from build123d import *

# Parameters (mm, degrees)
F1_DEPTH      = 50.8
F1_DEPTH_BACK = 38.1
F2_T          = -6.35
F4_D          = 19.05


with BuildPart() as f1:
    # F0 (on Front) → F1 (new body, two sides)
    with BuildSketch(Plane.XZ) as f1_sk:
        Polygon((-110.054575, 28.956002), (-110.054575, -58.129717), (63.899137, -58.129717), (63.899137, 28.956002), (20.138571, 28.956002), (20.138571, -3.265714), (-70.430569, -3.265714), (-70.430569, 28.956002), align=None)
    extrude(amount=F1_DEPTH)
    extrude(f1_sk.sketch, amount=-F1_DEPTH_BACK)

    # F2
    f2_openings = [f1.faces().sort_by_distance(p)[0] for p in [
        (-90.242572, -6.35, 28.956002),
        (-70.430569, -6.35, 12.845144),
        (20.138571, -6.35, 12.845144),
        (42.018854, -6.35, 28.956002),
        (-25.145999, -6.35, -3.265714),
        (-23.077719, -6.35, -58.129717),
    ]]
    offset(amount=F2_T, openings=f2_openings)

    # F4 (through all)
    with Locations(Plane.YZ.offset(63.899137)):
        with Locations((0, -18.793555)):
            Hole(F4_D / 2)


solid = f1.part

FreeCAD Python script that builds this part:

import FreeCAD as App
import Part
import Sketcher
Q = App.Units.Quantity


def faces_at(feature, points):
    """Names of the faces that lie closest to the given points."""
    faces = feature.Shape.Faces
    near = lambda p: min(range(len(faces)), key=lambda i: faces[i].distToShape(Part.Vertex(*p))[0])
    return sorted({f"Face{near(p) + 1}" for p in points})

doc = App.newDocument("Part")
params = doc.addObject("Spreadsheet::Sheet", "Params")
for row, (alias, value) in enumerate([
    ("pad1_length", "2 in"),
    ("pad1_length2", "1.5 in"),
    ("thickness_wall", "0.25 in"),
    ("sketch2_diameter", "0.75 in"),
    ("hole_diameter", "0.75 in"),
], start=1):
    params.set(f"A{row}", alias)
    params.set(f"B{row}", "=" + value)
    params.setAlias(f"B{row}", alias)

body = doc.addObject("PartDesign::Body", "Body")

sketch1 = body.newObject("Sketcher::SketchObject", "Sketch")
sketch1.AttachmentSupport = (doc.getObject("XZ_Plane"), [""])
sketch1.MapMode = "FlatFace"
sketch1.addGeometry(Part.LineSegment(App.Vector(-110, 29, 0), App.Vector(-110, -58, 0)), False)
sketch1.addGeometry(Part.LineSegment(App.Vector(-110, -58, 0), App.Vector(64, -58, 0)), False)
sketch1.addGeometry(Part.LineSegment(App.Vector(64, -58, 0), App.Vector(64, 29, 0)), False)
sketch1.addGeometry(Part.LineSegment(App.Vector(64, 29, 0), App.Vector(20, 29, 0)), False)
sketch1.addGeometry(Part.LineSegment(App.Vector(20, 29, 0), App.Vector(20, -3, 0)), False)
sketch1.addGeometry(Part.LineSegment(App.Vector(20, -3, 0), App.Vector(-70, -3, 0)), False)
sketch1.addGeometry(Part.LineSegment(App.Vector(-70, -3, 0), App.Vector(-70, 29, 0)), False)
sketch1.addGeometry(Part.LineSegment(App.Vector(-70, 29, 0), App.Vector(-110, 29, 0)), False)
sketch1.addConstraint(Sketcher.Constraint("Coincident", 0, 2, 1, 1))
sketch1.addConstraint(Sketcher.Constraint("Coincident", 1, 2, 2, 1))
sketch1.addConstraint(Sketcher.Constraint("Coincident", 2, 2, 3, 1))
sketch1.addConstraint(Sketcher.Constraint("Coincident", 3, 2, 4, 1))
sketch1.addConstraint(Sketcher.Constraint("Coincident", 4, 2, 5, 1))
sketch1.addConstraint(Sketcher.Constraint("Coincident", 5, 2, 6, 1))
sketch1.addConstraint(Sketcher.Constraint("Coincident", 6, 2, 7, 1))
sketch1.addConstraint(Sketcher.Constraint("Coincident", 7, 2, 0, 1))
sketch1.addConstraint(Sketcher.Constraint("Vertical", 0))
sketch1.addConstraint(Sketcher.Constraint("Horizontal", 1))
sketch1.addConstraint(Sketcher.Constraint("Vertical", 2))
sketch1.addConstraint(Sketcher.Constraint("Horizontal", 3))
sketch1.addConstraint(Sketcher.Constraint("Vertical", 4))
sketch1.addConstraint(Sketcher.Constraint("Horizontal", 5))
sketch1.addConstraint(Sketcher.Constraint("Vertical", 6))
sketch1.addConstraint(Sketcher.Constraint("Horizontal", 7))
sketch1.addConstraint(Sketcher.Constraint("Horizontal", 3, 2, 6, 2))
sketch1.addConstraint(Sketcher.Constraint("DistanceY", -1, 1, 2, 2, Q("1.1400001 in")))
sketch1.addConstraint(Sketcher.Constraint("DistanceY", 1, 2, 4, 2, Q("2.1600001 in")))
sketch1.addConstraint(Sketcher.Constraint("DistanceX", 1, 1, 1, 2, 173.953712))
sketch1.addConstraint(Sketcher.Constraint("DistanceX", 5, 2, 5, 1, 90.56914))
sketch1.addConstraint(Sketcher.Constraint("DistanceY", 0, 2, 0, 1, 87.085719))
sketch1.addConstraint(Sketcher.Constraint("DistanceX", 3, 2, 3, 1, 43.760566))
sketch1.addConstraint(Sketcher.Constraint("DistanceX", -1, 1, 3, 2, 20.138571))
pad1 = body.newObject("PartDesign::Pad", "Pad")
pad1.Profile = sketch1
pad1.Type = "TwoLengths"
pad1.setExpression("Length", "Params.pad1_length")
pad1.setExpression("Length2", "Params.pad1_length2")
doc.recompute()

thickness = body.newObject("PartDesign::Thickness", "Thickness")
thickness.Base = (pad1, faces_at(pad1, [
    (-90.243, -6.35, 28.956),
    (-70.431, -6.35, 12.845),
    (20.139, -6.35, 12.845),
    (42.019, -6.35, 28.956),
    (-25.146, -6.35, -3.266),
    (-23.078, -6.35, -58.13),
]))
thickness.setExpression("Value", "Params.thickness_wall")
thickness.Reversed = True
thickness.Join = "Arc"

sketch2 = body.newObject("Sketcher::SketchObject", "Sketch001")
sketch2.AttachmentSupport = (doc.getObject("YZ_Plane"), [""])
sketch2.MapMode = "FlatFace"
sketch2.AttachmentOffset = App.Placement(App.Vector(0, 0, 63.899137), App.Rotation())
sketch2.addGeometry(Part.Circle(App.Vector(0, -19, 0), App.Vector(0, 0, 1), 10), False)
sketch2.addConstraint(Sketcher.Constraint("PointOnObject", 0, 3, -2))
sketch2.addConstraint(Sketcher.Constraint("Diameter", 0, Q("0.75 in")))
sketch2.addConstraint(Sketcher.Constraint("DistanceY", 0, 3, -1, 1, 18.793555))
sketch2.setExpression("Constraints[1]", "Params.sketch2_diameter")
doc.recompute()
hole = body.newObject("PartDesign::Hole", "Hole")
hole.Profile = sketch2
hole.ThreadType = "None"
hole.setExpression("Diameter", "Params.hole_diameter")
hole.DepthType = "ThroughAll"

doc.recompute()
